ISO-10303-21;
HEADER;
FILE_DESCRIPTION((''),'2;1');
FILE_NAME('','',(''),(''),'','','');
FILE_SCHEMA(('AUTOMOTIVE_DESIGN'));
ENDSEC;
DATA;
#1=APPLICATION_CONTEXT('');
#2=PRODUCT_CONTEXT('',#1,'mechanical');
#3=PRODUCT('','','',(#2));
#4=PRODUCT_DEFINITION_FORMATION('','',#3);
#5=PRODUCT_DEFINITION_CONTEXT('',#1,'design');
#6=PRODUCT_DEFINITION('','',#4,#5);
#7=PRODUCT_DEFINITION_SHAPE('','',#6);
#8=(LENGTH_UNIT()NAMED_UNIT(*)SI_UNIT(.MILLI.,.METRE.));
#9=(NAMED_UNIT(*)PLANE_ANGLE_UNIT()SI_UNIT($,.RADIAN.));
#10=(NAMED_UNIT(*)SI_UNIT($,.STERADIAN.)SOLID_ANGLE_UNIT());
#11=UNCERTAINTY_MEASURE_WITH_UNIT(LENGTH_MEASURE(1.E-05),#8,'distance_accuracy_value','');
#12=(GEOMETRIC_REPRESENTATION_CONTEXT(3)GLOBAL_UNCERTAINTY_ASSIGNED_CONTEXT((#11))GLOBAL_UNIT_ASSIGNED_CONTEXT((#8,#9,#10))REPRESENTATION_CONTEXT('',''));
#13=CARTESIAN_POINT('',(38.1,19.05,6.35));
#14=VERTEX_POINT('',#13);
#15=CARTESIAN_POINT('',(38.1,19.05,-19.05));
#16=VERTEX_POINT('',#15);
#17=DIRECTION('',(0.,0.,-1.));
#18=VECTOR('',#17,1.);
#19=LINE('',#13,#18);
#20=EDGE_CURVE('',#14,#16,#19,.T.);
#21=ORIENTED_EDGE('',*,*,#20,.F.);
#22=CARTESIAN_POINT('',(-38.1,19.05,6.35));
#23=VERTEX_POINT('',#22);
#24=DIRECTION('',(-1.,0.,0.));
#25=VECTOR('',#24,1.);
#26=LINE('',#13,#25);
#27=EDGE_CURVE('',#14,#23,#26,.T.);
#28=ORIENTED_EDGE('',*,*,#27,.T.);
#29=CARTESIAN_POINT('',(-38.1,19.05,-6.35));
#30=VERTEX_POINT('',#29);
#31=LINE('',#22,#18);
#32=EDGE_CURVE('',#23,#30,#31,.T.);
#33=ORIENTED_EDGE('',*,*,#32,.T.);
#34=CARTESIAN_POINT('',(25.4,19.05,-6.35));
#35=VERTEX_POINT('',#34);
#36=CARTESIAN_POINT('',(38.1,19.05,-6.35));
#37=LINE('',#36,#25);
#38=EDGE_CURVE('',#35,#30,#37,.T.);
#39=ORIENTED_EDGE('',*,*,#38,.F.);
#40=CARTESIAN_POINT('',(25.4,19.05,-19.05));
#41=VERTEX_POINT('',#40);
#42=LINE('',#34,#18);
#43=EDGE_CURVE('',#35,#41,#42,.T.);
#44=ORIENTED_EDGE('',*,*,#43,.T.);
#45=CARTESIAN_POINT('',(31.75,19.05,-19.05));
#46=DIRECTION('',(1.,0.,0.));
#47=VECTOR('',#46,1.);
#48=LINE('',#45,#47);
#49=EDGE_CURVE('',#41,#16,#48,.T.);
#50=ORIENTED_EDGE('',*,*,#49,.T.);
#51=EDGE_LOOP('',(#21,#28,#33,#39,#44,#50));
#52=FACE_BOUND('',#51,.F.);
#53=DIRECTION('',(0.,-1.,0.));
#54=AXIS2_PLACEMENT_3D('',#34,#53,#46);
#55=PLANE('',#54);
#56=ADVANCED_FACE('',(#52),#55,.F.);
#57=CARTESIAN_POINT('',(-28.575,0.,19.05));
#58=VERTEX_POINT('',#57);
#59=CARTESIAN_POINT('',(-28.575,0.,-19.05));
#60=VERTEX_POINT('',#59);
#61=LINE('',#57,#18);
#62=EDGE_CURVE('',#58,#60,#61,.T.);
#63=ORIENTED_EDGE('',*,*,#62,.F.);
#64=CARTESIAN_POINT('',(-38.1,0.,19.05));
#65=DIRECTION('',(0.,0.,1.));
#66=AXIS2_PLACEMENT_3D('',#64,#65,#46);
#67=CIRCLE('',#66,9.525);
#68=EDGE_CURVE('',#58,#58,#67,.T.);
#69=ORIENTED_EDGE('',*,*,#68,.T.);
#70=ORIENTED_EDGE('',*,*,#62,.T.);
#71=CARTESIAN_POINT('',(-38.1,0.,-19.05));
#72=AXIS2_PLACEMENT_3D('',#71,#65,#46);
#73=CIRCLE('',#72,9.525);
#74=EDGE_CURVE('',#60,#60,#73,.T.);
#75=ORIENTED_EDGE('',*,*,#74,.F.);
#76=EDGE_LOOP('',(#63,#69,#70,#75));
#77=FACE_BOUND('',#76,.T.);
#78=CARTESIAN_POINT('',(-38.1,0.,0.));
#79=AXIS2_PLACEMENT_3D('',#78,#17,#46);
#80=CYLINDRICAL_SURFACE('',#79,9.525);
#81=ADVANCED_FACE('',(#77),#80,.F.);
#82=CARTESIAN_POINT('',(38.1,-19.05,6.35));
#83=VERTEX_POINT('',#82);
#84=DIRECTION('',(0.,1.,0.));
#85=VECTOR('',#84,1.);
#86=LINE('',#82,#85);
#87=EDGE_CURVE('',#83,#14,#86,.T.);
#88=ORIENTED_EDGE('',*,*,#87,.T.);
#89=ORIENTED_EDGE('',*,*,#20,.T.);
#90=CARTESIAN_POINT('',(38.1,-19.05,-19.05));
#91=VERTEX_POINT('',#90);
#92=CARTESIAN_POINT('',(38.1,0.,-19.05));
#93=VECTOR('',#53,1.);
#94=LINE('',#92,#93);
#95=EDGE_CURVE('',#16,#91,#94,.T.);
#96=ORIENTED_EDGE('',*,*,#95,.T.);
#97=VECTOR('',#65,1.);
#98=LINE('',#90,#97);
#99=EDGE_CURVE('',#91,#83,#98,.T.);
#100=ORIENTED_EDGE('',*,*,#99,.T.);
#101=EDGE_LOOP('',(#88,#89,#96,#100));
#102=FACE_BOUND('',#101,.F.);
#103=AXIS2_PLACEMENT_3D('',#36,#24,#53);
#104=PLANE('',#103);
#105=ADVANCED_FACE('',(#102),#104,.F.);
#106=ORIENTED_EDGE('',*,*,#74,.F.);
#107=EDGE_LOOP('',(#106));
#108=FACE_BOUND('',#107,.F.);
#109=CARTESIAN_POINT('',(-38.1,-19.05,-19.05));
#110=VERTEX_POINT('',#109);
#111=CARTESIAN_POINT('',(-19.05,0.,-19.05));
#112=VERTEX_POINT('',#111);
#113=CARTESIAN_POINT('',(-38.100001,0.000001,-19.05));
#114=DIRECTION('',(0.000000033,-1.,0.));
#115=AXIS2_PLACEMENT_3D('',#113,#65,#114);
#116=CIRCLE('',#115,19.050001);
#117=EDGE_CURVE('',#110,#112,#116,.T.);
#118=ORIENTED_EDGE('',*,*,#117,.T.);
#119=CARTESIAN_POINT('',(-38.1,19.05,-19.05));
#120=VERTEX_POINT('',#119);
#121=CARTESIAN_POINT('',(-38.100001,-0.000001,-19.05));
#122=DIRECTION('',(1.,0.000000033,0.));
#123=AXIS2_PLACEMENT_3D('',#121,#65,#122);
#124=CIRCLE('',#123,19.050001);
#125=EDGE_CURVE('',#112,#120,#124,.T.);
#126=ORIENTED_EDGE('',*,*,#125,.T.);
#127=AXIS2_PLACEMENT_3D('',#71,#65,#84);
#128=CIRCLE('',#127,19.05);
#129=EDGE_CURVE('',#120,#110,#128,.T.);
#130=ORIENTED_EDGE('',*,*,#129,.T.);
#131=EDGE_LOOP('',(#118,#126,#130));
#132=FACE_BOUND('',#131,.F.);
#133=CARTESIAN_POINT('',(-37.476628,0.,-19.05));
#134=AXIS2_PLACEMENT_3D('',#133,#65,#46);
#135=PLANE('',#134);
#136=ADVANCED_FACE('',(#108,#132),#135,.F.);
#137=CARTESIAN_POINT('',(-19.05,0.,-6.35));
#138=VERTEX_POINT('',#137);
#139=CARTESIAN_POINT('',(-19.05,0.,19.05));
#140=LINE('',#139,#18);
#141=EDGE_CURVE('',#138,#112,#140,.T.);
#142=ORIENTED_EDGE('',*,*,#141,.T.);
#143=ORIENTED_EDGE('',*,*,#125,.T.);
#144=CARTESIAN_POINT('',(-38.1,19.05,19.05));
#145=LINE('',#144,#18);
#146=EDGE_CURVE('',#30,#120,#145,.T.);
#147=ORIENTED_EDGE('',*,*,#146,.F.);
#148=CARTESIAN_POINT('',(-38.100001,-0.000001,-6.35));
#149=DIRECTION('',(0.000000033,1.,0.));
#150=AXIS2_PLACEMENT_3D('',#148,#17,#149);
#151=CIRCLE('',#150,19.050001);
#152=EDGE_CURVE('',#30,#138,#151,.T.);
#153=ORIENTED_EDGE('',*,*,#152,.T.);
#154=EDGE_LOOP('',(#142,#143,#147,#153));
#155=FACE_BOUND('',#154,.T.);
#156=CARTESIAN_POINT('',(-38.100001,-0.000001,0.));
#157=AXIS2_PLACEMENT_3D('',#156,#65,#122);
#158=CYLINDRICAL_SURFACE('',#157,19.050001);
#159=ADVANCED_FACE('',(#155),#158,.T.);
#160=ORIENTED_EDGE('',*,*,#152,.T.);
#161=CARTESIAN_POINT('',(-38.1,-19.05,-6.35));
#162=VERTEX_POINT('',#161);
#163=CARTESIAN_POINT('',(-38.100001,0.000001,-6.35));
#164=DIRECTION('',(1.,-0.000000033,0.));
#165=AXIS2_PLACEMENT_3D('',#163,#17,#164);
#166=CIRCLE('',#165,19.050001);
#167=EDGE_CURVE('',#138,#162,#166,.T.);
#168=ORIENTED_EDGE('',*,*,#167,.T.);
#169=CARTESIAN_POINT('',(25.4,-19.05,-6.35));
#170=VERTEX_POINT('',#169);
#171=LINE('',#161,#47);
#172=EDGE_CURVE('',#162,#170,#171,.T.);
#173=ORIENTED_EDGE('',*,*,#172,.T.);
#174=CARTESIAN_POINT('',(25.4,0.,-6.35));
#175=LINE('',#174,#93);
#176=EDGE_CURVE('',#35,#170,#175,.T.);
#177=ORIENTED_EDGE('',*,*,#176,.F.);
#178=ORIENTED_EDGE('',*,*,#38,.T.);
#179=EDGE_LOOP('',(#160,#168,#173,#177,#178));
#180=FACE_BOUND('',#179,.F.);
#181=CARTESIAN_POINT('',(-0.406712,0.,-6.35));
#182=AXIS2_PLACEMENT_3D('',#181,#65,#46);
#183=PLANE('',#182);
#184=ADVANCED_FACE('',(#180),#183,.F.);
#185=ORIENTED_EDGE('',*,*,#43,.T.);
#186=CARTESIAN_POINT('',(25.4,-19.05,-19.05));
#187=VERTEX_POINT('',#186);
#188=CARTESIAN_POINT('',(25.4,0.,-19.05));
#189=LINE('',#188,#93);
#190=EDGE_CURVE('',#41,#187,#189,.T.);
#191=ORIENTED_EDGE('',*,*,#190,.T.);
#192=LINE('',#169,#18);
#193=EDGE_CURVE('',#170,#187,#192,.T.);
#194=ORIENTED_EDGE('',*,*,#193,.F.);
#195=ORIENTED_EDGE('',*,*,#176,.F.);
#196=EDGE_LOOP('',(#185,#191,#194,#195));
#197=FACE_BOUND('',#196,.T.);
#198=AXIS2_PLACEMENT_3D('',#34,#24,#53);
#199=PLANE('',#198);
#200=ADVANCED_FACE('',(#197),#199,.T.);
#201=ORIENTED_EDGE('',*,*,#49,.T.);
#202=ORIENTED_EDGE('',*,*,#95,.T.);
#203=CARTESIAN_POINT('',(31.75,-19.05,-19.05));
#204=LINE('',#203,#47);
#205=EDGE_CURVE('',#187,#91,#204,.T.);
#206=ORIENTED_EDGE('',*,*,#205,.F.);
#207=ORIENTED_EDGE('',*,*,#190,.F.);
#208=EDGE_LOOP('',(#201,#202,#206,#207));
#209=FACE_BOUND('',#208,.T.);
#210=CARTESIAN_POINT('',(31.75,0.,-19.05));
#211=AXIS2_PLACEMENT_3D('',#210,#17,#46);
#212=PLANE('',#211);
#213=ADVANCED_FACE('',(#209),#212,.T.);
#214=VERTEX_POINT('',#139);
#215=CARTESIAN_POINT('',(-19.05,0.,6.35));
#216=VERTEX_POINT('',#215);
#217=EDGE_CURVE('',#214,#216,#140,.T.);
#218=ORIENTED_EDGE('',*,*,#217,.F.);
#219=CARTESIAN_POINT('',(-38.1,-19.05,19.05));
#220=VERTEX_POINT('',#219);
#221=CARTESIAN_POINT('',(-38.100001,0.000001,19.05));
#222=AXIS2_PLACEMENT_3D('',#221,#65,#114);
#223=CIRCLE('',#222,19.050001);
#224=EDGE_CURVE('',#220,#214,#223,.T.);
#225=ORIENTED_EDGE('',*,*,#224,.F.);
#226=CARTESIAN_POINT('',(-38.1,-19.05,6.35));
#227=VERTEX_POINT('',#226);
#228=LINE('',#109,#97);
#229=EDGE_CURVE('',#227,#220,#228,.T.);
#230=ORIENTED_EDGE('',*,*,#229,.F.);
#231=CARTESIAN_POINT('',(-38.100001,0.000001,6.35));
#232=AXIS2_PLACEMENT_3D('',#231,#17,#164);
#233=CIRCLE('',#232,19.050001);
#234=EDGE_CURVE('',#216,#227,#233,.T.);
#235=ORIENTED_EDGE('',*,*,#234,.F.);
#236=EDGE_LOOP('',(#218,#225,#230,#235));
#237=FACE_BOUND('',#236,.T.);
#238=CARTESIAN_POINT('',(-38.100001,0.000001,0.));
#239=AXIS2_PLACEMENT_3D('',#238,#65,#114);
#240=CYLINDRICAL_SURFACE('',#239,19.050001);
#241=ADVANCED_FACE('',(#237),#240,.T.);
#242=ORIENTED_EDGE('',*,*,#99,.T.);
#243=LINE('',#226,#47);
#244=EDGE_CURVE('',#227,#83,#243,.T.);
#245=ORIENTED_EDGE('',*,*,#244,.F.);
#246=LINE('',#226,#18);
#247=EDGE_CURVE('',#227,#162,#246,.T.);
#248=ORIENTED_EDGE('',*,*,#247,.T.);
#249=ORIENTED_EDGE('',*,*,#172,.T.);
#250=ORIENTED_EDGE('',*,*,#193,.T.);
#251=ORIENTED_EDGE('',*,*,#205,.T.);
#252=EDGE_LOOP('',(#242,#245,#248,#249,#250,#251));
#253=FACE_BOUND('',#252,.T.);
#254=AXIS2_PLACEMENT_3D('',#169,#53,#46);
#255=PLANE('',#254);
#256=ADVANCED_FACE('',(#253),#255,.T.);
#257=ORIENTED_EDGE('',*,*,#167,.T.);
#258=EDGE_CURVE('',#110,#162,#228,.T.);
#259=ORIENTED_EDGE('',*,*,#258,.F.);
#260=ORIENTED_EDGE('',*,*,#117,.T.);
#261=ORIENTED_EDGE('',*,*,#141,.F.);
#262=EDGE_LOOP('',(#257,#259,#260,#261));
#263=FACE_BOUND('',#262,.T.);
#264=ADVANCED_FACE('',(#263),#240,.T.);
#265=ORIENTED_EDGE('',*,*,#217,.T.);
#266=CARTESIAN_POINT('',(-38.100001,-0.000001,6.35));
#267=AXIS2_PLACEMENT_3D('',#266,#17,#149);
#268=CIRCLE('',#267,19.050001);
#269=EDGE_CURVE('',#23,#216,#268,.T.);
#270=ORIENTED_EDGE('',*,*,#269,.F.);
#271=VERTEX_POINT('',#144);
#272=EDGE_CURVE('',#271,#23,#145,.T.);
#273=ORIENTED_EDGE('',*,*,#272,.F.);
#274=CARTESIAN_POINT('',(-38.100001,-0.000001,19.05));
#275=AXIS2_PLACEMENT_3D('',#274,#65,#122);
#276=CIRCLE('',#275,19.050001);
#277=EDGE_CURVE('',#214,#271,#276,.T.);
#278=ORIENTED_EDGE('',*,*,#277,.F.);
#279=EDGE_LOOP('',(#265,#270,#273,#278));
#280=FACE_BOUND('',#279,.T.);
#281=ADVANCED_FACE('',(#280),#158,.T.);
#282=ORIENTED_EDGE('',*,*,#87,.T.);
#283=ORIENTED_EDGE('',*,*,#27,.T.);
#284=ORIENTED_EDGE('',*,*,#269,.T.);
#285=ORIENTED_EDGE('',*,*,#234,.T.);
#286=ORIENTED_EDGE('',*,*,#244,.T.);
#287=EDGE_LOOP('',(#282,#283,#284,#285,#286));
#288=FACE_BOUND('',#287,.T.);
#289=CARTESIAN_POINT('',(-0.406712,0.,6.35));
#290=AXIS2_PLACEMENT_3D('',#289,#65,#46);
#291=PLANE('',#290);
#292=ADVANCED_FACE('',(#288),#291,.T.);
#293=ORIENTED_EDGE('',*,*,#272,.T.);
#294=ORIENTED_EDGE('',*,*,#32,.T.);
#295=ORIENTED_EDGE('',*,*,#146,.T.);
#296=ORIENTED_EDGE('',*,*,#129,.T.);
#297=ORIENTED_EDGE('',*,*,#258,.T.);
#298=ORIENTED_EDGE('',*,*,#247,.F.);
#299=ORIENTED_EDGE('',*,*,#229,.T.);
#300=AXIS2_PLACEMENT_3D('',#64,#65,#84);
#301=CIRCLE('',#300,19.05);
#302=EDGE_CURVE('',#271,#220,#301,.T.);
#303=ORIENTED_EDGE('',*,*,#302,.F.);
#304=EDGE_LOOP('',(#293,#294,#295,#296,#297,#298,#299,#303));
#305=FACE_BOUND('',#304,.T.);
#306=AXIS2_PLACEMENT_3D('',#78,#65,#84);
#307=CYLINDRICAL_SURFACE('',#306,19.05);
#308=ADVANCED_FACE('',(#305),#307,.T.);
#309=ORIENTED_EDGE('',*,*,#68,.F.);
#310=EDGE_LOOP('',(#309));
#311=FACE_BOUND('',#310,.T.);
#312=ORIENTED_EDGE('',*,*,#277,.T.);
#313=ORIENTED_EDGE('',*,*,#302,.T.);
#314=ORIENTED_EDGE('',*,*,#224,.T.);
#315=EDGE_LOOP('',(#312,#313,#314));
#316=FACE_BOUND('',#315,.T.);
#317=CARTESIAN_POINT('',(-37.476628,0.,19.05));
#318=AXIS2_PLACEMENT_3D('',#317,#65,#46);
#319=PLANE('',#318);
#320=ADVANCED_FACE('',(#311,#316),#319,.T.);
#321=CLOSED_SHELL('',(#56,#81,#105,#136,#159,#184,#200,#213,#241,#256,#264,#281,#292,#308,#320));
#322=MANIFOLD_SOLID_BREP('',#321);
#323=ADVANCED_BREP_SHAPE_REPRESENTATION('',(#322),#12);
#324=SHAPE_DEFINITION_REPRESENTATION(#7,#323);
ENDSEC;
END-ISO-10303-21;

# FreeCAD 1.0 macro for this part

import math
import FreeCAD as App
import Part
import Sketcher
from FreeCAD import Vector
Q = App.Units.Quantity


def add_polygon(sketch, points):
    """Adds a closed chain of lines whose ends are joined by coincident constraints."""
    first, n = sketch.GeometryCount, len(points)
    for a, b in zip(points, points[1:] + points[:1]):
        sketch.addGeometry(Part.LineSegment(App.Vector(*a, 0), App.Vector(*b, 0)), False)
    for i in range(n):
        sketch.addConstraint(Sketcher.Constraint("Coincident", first + i, 2, first + (i + 1) % n, 1))

doc = App.newDocument("Part")
body = doc.addObject("PartDesign::Body", "Body")

sketch1 = body.newObject("Sketcher::SketchObject", "Sketch")
sketch1.AttachmentSupport = (doc.getObject("XY_Plane"), [""])
sketch1.MapMode = "FlatFace"
sketch1.addGeometry([
    Part.ArcOfCircle(Part.Circle(Vector(-38.1, 0, 0), Vector(0, 0, 1), 19.05), math.radians(90), math.radians(270)),
    Part.ArcOfCircle(Part.Circle(Vector(-38.100001, 0.000001, 0), Vector(0, 0, 1), 19.050001), math.radians(-89.999998), math.radians(-0.000002)),
    Part.ArcOfCircle(Part.Circle(Vector(-38.100001, -0.000001, 0), Vector(0, 0, 1), 19.050001), math.radians(0.000002), math.radians(89.999998)),
    Part.Circle(Vector(-38.1, 0, 0), Vector(0, 0, 1), 9.525),
], False)
sketch1.addConstraint([
    Sketcher.Constraint("Tangent", 0, 2, 1, 1),
    Sketcher.Constraint("Tangent", 1, 2, 2, 1),
    Sketcher.Constraint("Tangent", 2, 2, 0, 1),
    Sketcher.Constraint("Coincident", 3, 3, 0, 3),
    Sketcher.Constraint("Symmetric", 0, 2, 2, 2, -1),
    Sketcher.Constraint("PointOnObject", 1, 2, -1),
    Sketcher.Constraint("Vertical", 3, 3, 0, 2),
    Sketcher.Constraint("Diameter", 3, Q("0.75 in")),
    Sketcher.Constraint("Radius", 0, Q("0.75 in")),
    Sketcher.Constraint("DistanceX", 0, 3, -1, 1, Q("1.5 in")),
])
pad1 = body.newObject("PartDesign::Pad", "Pad")
pad1.Profile = sketch1
pad1.Length = Q("1.5 in")
pad1.Midplane = True

sketch2 = body.newObject("Sketcher::SketchObject", "Sketch001")
sketch2.AttachmentSupport = (doc.getObject("XY_Plane"), [""])
sketch2.MapMode = "FlatFace"
sketch2.addGeometry([
    Part.LineSegment(Vector(-38.1, -19.05, 0), Vector(38.1, -19.05, 0)),
    Part.LineSegment(Vector(38.1, -19.05, 0), Vector(38.1, 19.05, 0)),
    Part.LineSegment(Vector(38.1, 19.05, 0), Vector(-38.1, 19.05, 0)),
    Part.ArcOfCircle(Part.Circle(Vector(-38.100001, -0.000001, 0), Vector(0, 0, 1), 19.050001), math.radians(0.000002), math.radians(89.999998)),
    Part.ArcOfCircle(Part.Circle(Vector(-38.100001, 0.000001, 0), Vector(0, 0, 1), 19.050001), math.radians(-89.999998), math.radians(-0.000002)),
], False)
sketch2.addConstraint([
    Sketcher.Constraint("Coincident", 0, 2, 1, 1),
    Sketcher.Constraint("Coincident", 1, 2, 2, 1),
    Sketcher.Constraint("Tangent", 2, 2, 3, 2),
    Sketcher.Constraint("Tangent", 3, 1, 4, 2),
    Sketcher.Constraint("Tangent", 4, 1, 0, 1),
    Sketcher.Constraint("Horizontal", 0),
    Sketcher.Constraint("Vertical", 1),
    Sketcher.Constraint("Horizontal", 2),
    Sketcher.Constraint("Equal", 3, 4),
    Sketcher.Constraint("Symmetric", 0, 2, 2, 2, -1, 1),
    Sketcher.Constraint("PointOnObject", 3, 1, -1),
    Sketcher.Constraint("DistanceX", 0, 1, 0, 2, Q("3 in")),
    Sketcher.Constraint("Radius", 3, Q("0.75 in")),
])
pad2 = body.newObject("PartDesign::Pad", "Pad001")
pad2.Profile = sketch2
pad2.Length = Q("0.5 in")
pad2.Midplane = True

sketch3 = body.newObject("Sketcher::SketchObject", "Sketch002")
sketch3.AttachmentSupport = (doc.getObject("XY_Plane"), [""])
sketch3.MapMode = "FlatFace"
sketch3.AttachmentOffset = App.Placement(Vector(0, 0, -0.25 * 25.4), App.Rotation())
add_polygon(sketch3, [(25.4, -19.05), (25.4, 19.05), (38.1, 19.05), (38.1, -19.05)])
sketch3.addConstraint([
    Sketcher.Constraint("Vertical", 0),
    Sketcher.Constraint("Horizontal", 1),
    Sketcher.Constraint("Vertical", 2),
    Sketcher.Constraint("Horizontal", 3),
    Sketcher.Constraint("DistanceX", 1, 1, 1, 2, Q("0.5 in")),
    Sketcher.Constraint("DistanceY", 0, 1, 0, 2, Q("1.5 in")),
    Sketcher.Constraint("DistanceX", -1, 1, 0, 2, Q("1 in")),
    Sketcher.Constraint("DistanceY", -1, 1, 0, 2, Q("0.75 in")),
])
pad3 = body.newObject("PartDesign::Pad", "Pad002")
pad3.Profile = sketch3
pad3.Length = Q("0.5 in")
pad3.Reversed = True

doc.recompute()
